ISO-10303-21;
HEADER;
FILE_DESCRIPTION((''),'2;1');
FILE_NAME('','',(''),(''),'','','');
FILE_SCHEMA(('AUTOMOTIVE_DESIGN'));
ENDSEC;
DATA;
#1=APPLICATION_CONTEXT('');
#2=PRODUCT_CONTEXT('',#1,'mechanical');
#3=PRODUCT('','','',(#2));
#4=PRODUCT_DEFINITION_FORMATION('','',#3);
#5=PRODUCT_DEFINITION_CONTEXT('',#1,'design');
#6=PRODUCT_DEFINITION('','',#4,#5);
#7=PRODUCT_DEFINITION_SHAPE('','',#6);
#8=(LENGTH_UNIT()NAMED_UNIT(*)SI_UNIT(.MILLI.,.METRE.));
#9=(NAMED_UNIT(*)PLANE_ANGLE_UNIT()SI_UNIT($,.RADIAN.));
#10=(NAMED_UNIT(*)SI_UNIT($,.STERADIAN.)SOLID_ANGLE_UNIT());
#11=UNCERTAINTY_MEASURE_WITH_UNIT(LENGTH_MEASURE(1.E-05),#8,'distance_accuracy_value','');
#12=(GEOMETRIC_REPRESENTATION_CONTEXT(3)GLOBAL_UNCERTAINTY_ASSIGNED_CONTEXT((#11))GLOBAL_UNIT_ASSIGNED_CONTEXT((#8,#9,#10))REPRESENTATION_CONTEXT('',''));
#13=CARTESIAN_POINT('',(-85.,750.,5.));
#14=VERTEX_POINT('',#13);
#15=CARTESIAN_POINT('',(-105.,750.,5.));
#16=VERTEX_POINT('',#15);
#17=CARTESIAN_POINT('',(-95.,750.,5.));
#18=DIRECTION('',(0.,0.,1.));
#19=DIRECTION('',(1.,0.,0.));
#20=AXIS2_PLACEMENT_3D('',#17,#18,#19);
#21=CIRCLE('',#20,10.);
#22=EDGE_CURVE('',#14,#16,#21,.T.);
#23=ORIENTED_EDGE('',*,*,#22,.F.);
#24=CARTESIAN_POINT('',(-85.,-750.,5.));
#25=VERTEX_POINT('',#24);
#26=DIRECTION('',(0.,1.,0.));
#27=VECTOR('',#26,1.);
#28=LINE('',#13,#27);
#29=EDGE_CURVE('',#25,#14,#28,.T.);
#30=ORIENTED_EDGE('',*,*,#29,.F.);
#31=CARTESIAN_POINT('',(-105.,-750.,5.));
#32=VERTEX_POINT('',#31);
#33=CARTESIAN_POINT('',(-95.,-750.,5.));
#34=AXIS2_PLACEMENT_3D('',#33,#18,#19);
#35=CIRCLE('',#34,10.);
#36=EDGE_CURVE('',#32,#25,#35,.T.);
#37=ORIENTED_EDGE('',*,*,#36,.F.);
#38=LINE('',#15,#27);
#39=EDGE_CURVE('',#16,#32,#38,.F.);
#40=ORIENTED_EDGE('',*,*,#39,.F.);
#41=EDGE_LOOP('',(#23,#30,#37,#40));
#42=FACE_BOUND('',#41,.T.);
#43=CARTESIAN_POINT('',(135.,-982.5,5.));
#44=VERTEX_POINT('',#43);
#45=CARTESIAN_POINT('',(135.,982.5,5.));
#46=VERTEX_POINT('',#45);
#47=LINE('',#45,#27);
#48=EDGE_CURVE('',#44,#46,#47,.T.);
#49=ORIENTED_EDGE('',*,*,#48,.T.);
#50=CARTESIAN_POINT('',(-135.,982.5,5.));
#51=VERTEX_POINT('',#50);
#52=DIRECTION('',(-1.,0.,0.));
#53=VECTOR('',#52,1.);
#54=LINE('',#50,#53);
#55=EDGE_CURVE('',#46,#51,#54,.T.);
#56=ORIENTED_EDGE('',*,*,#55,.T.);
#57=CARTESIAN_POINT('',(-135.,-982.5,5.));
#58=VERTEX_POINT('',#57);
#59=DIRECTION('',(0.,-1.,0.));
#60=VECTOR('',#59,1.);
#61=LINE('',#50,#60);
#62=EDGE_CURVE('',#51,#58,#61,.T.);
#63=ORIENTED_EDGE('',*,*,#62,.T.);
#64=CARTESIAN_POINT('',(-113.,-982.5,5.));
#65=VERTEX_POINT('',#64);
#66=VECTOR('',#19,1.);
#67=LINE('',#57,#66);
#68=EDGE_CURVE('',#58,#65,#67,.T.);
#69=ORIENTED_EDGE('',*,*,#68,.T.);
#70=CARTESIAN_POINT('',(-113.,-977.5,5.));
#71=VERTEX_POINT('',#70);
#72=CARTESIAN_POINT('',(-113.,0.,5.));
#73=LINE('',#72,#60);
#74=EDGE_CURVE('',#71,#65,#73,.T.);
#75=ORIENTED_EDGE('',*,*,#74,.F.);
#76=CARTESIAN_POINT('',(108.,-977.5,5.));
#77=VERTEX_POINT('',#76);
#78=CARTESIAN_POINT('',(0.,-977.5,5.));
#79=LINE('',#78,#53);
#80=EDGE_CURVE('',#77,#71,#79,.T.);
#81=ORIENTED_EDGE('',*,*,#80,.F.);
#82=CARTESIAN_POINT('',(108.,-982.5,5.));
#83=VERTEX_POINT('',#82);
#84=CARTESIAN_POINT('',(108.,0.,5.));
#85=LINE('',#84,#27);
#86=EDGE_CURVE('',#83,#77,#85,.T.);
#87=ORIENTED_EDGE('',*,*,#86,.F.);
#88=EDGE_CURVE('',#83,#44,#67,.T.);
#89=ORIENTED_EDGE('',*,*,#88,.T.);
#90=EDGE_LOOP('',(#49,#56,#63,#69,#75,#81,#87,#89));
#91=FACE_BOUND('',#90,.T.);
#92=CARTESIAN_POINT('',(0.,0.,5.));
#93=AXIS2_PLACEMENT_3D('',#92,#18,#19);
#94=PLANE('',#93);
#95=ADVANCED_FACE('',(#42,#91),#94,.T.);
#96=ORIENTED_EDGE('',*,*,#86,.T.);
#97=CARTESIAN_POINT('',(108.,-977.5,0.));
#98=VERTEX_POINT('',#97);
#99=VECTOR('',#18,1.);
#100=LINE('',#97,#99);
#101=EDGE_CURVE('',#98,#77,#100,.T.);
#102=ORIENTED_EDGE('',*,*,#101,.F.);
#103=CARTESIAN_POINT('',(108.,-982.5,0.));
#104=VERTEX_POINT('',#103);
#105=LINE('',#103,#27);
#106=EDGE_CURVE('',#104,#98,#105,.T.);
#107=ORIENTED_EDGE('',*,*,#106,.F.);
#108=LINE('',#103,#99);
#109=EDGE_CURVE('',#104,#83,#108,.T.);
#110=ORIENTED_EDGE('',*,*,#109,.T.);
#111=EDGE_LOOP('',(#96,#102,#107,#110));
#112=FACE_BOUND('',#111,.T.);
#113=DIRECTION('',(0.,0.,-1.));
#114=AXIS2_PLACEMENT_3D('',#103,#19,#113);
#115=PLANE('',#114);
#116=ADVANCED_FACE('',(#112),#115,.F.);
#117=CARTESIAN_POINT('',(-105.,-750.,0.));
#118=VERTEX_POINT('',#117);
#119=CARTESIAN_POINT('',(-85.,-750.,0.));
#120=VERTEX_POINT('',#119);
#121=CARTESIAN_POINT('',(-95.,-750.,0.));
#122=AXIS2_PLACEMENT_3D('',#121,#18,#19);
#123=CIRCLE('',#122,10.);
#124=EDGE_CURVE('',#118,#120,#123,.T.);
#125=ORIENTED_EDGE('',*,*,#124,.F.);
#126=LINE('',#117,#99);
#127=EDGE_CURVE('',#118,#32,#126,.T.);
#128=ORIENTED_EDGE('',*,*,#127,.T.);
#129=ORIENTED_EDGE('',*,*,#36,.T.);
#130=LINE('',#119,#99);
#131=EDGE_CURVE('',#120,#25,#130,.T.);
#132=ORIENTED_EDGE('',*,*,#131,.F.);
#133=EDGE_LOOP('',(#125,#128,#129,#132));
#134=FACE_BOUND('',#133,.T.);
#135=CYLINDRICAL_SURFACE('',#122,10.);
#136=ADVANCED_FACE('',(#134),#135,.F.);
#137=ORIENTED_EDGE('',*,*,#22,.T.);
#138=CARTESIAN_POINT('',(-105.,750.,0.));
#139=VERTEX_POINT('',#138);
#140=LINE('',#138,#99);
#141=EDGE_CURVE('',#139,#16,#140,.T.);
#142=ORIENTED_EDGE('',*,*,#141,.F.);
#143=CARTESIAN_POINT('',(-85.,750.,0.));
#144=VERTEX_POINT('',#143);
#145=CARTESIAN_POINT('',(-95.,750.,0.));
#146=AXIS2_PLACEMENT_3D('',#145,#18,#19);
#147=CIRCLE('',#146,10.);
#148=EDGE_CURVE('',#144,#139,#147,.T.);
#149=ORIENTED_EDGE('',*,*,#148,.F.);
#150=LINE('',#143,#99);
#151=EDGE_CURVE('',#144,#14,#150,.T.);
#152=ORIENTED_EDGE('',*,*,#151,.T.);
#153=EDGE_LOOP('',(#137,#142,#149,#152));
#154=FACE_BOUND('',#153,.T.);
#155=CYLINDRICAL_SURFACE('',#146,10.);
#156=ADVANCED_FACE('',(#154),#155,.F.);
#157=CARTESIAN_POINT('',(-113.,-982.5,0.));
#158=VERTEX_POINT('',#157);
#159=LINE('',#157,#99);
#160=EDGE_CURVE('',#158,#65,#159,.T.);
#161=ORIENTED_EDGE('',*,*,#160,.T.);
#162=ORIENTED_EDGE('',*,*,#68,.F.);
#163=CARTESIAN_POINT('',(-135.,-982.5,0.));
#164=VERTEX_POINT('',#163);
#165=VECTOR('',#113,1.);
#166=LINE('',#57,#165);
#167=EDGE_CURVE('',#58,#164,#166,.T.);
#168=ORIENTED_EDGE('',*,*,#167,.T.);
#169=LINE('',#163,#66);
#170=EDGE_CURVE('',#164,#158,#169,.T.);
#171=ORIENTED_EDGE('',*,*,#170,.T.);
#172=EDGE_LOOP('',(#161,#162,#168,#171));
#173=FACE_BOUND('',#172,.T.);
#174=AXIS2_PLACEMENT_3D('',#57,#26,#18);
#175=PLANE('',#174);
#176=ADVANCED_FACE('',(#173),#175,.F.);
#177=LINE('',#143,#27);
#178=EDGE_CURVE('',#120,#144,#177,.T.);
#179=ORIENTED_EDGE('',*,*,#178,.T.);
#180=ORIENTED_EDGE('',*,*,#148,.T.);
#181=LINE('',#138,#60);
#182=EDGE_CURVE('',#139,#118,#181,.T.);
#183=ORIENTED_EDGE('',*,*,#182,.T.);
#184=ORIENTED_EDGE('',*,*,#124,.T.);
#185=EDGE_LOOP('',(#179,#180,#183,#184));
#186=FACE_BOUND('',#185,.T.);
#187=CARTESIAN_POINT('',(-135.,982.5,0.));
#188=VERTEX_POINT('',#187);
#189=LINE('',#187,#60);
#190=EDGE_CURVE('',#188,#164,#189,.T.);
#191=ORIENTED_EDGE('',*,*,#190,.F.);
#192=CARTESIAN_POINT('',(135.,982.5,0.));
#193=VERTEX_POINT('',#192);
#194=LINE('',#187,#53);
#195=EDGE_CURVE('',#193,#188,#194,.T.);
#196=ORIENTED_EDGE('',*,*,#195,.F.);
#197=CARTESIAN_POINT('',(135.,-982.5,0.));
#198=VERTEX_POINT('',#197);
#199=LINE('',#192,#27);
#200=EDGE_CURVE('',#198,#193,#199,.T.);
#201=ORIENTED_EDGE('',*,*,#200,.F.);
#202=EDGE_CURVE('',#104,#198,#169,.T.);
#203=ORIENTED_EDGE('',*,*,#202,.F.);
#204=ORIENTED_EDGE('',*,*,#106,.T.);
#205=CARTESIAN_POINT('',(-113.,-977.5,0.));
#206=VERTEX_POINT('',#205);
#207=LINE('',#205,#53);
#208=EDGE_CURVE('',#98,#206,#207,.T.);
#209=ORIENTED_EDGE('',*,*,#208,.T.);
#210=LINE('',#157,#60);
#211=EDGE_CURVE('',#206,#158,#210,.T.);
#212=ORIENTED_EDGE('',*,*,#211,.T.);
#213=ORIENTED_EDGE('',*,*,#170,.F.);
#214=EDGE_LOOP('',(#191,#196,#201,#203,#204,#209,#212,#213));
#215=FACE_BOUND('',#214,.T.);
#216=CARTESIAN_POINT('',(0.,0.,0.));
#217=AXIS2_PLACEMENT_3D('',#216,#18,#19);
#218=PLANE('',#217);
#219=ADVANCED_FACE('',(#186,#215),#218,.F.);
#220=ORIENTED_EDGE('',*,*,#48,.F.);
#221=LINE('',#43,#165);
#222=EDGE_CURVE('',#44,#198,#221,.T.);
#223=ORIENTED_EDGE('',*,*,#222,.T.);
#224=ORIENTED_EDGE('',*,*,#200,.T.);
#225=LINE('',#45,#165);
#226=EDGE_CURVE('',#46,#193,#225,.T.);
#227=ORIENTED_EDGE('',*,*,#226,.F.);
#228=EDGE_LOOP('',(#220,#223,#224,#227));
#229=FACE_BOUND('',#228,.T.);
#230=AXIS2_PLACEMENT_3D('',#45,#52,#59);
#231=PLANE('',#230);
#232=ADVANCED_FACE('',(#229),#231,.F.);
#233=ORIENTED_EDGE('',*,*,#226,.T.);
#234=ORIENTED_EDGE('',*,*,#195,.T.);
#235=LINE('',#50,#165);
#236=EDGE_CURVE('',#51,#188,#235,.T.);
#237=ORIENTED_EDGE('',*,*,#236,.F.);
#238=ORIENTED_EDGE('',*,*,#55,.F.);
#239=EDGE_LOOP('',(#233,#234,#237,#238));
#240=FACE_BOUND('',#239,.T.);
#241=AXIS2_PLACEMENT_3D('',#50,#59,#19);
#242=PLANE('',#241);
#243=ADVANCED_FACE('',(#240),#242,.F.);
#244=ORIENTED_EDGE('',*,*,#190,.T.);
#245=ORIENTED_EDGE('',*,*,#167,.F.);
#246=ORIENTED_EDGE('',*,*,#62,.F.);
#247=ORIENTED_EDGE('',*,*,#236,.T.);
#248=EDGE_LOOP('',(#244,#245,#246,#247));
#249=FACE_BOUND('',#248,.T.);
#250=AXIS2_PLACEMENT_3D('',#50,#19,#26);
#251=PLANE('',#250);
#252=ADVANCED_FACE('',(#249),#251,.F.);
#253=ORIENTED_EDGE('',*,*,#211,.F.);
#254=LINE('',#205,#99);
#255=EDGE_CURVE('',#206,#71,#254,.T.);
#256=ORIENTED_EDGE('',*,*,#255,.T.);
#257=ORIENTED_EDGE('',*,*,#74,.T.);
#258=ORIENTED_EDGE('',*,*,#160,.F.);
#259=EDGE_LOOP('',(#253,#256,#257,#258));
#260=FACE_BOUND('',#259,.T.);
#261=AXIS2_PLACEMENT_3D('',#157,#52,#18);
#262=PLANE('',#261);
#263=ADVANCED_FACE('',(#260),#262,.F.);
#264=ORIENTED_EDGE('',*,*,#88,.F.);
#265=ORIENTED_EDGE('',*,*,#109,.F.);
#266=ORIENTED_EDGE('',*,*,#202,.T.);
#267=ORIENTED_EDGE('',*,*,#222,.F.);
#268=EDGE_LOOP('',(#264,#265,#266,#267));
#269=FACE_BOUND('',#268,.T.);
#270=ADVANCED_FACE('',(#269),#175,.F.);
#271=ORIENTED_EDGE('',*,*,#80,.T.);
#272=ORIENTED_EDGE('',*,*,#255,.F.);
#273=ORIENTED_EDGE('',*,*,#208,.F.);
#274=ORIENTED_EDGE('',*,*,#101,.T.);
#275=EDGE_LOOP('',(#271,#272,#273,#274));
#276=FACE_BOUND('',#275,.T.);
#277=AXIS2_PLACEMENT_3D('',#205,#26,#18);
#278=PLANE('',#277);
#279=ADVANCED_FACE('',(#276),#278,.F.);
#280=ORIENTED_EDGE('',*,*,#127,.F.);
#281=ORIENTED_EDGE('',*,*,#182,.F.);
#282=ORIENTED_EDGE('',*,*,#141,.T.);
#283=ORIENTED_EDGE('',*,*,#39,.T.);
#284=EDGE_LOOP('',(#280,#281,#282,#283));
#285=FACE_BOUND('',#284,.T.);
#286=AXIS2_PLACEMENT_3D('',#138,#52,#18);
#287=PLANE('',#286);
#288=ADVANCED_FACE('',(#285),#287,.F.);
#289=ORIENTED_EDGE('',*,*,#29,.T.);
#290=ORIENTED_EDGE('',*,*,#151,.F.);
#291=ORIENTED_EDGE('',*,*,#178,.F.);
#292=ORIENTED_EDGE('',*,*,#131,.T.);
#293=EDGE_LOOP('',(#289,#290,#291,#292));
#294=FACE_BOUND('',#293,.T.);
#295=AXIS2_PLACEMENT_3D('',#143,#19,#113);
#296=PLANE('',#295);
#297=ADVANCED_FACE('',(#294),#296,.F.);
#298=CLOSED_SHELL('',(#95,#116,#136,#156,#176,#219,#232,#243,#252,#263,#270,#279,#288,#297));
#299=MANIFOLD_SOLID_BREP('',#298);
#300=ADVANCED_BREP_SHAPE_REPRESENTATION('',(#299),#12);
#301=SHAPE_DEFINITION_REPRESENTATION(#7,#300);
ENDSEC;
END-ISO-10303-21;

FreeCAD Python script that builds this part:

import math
import FreeCAD as App
import Part
import Sketcher
Q = App.Units.Quantity


def add_polygon(sketch, points):
    """Adds a closed chain of lines whose ends are joined by coincident constraints."""
    first, n = sketch.GeometryCount, len(points)
    for a, b in zip(points, points[1:] + points[:1]):
        sketch.addGeometry(Part.LineSegment(App.Vector(*a, 0), App.Vector(*b, 0)), False)
    for i in range(n):
        sketch.addConstraint(Sketcher.Constraint("Coincident", first + i, 2, first + (i + 1) % n, 1))

doc = App.newDocument("Part")
params = doc.addObject("Spreadsheet::Sheet", "Params")
for row, (alias, value) in enumerate([
    ("sketch1_width", "270 mm"),
    ("sketch1_height", "1965 mm"),
    ("pad1_length", "5 mm"),
    ("sketch2_width", "221 mm"),
    ("sketch2_height", "5 mm"),
    ("sketch3_radius", "10 mm"),
    ("sketch3_height", "1500 mm"),
], start=1):
    params.set(f"A{row}", alias)
    params.set(f"B{row}", "=" + value)
    params.setAlias(f"B{row}", alias)

body = doc.addObject("PartDesign::Body", "Body")

sketch1 = doc.addObject("Sketcher::SketchObject", "Sketch")
body.addObject(sketch1)
sketch1.AttachmentSupport = (doc.XY_Plane, [""])
sketch1.MapMode = "FlatFace"
add_polygon(sketch1, [(-135, 982.5), (-135, -982.5), (135, -982.5), (135, 982.5)])
sketch1.addConstraint([
    Sketcher.Constraint("Vertical", 0),
    Sketcher.Constraint("Horizontal", 1),
    Sketcher.Constraint("Vertical", 2),
    Sketcher.Constraint("Horizontal", 3),
    Sketcher.Constraint("Symmetric", 0, 2, 2, 2, -1, 1),
    Sketcher.Constraint("DistanceX", 1, 1, 1, 2, Q("270 mm")),
    Sketcher.Constraint("DistanceY", 0, 2, 0, 1, Q("1965 mm")),
])
sketch1.setExpression("Constraints[9]", "Params.sketch1_width")
sketch1.setExpression("Constraints[10]", "Params.sketch1_height")
pad1 = doc.addObject("PartDesign::Pad", "Pad")
body.addObject(pad1)
pad1.Profile = sketch1
pad1.setExpression("Length", "Params.pad1_length")

sketch2 = doc.addObject("Sketcher::SketchObject", "Sketch001")
body.addObject(sketch2)
sketch2.AttachmentSupport = (doc.XY_Plane, [""])
sketch2.MapMode = "FlatFace"
sketch2.AttachmentOffset = App.Placement(App.Vector(0, 0, 5), App.Rotation())
add_polygon(sketch2, [(-113, -977.5), (-113, -982.5), (108, -982.5), (108, -977.5)])
sketch2.addConstraint([
    Sketcher.Constraint("Vertical", 0),
    Sketcher.Constraint("Horizontal", 1),
    Sketcher.Constraint("Vertical", 2),
    Sketcher.Constraint("Horizontal", 3),
    Sketcher.Constraint("DistanceX", 1, 1, 1, 2, Q("221 mm")),
    Sketcher.Constraint("DistanceY", 0, 2, 0, 1, Q("5 mm")),
    Sketcher.Constraint("DistanceX", 0, 2, -1, 1, Q("113 mm")),
    Sketcher.Constraint("DistanceY", 0, 2, -1, 1, Q("982.5 mm")),
])
sketch2.setExpression("Constraints[8]", "Params.sketch2_width")
sketch2.setExpression("Constraints[9]", "Params.sketch2_height")
pocket1 = doc.addObject("PartDesign::Pocket", "Pocket")
body.addObject(pocket1)
pocket1.Profile = sketch2
pocket1.Type = "ThroughAll"
pocket1.Midplane = True

sketch3 = doc.addObject("Sketcher::SketchObject", "Sketch002")
body.addObject(sketch3)
sketch3.AttachmentSupport = (doc.XY_Plane, [""])
sketch3.MapMode = "FlatFace"
sketch3.AttachmentOffset = App.Placement(App.Vector(0, 0, 5), App.Rotation())
sketch3.addGeometry([
    Part.LineSegment(App.Vector(-85, -750, 0), App.Vector(-85, 750, 0)),
    Part.ArcOfCircle(Part.Circle(App.Vector(-95, 750, 0), App.Vector(0, 0, 1), 10), math.radians(0), math.radians(180)),
    Part.LineSegment(App.Vector(-105, 750, 0), App.Vector(-105, -750, 0)),
    Part.ArcOfCircle(Part.Circle(App.Vector(-95, -750, 0), App.Vector(0, 0, 1), 10), math.radians(180), math.radians(360)),
], False)
sketch3.addConstraint([
    Sketcher.Constraint("Tangent", 0, 2, 1, 1),
    Sketcher.Constraint("Tangent", 1, 2, 2, 1),
    Sketcher.Constraint("Tangent", 2, 2, 3, 1),
    Sketcher.Constraint("Tangent", 3, 2, 0, 1),
    Sketcher.Constraint("Vertical", 0),
    Sketcher.Constraint("Vertical", 2),
    Sketcher.Constraint("Radius", 1, Q("10 mm")),
    Sketcher.Constraint("DistanceY", 0, 1, 0, 2, Q("1500 mm")),
    Sketcher.Constraint("DistanceX", 1, 3, -1, 1, Q("95 mm")),
    Sketcher.Constraint("DistanceY", -1, 1, 1, 3, Q("750 mm")),
])
sketch3.setExpression("Constraints[6]", "Params.sketch3_radius")
sketch3.setExpression("Constraints[7]", "Params.sketch3_height")
pocket2 = doc.addObject("PartDesign::Pocket", "Pocket001")
body.addObject(pocket2)
pocket2.Profile = sketch3
pocket2.Type = "ThroughAll"
pocket2.Midplane = True

doc.recompute()
